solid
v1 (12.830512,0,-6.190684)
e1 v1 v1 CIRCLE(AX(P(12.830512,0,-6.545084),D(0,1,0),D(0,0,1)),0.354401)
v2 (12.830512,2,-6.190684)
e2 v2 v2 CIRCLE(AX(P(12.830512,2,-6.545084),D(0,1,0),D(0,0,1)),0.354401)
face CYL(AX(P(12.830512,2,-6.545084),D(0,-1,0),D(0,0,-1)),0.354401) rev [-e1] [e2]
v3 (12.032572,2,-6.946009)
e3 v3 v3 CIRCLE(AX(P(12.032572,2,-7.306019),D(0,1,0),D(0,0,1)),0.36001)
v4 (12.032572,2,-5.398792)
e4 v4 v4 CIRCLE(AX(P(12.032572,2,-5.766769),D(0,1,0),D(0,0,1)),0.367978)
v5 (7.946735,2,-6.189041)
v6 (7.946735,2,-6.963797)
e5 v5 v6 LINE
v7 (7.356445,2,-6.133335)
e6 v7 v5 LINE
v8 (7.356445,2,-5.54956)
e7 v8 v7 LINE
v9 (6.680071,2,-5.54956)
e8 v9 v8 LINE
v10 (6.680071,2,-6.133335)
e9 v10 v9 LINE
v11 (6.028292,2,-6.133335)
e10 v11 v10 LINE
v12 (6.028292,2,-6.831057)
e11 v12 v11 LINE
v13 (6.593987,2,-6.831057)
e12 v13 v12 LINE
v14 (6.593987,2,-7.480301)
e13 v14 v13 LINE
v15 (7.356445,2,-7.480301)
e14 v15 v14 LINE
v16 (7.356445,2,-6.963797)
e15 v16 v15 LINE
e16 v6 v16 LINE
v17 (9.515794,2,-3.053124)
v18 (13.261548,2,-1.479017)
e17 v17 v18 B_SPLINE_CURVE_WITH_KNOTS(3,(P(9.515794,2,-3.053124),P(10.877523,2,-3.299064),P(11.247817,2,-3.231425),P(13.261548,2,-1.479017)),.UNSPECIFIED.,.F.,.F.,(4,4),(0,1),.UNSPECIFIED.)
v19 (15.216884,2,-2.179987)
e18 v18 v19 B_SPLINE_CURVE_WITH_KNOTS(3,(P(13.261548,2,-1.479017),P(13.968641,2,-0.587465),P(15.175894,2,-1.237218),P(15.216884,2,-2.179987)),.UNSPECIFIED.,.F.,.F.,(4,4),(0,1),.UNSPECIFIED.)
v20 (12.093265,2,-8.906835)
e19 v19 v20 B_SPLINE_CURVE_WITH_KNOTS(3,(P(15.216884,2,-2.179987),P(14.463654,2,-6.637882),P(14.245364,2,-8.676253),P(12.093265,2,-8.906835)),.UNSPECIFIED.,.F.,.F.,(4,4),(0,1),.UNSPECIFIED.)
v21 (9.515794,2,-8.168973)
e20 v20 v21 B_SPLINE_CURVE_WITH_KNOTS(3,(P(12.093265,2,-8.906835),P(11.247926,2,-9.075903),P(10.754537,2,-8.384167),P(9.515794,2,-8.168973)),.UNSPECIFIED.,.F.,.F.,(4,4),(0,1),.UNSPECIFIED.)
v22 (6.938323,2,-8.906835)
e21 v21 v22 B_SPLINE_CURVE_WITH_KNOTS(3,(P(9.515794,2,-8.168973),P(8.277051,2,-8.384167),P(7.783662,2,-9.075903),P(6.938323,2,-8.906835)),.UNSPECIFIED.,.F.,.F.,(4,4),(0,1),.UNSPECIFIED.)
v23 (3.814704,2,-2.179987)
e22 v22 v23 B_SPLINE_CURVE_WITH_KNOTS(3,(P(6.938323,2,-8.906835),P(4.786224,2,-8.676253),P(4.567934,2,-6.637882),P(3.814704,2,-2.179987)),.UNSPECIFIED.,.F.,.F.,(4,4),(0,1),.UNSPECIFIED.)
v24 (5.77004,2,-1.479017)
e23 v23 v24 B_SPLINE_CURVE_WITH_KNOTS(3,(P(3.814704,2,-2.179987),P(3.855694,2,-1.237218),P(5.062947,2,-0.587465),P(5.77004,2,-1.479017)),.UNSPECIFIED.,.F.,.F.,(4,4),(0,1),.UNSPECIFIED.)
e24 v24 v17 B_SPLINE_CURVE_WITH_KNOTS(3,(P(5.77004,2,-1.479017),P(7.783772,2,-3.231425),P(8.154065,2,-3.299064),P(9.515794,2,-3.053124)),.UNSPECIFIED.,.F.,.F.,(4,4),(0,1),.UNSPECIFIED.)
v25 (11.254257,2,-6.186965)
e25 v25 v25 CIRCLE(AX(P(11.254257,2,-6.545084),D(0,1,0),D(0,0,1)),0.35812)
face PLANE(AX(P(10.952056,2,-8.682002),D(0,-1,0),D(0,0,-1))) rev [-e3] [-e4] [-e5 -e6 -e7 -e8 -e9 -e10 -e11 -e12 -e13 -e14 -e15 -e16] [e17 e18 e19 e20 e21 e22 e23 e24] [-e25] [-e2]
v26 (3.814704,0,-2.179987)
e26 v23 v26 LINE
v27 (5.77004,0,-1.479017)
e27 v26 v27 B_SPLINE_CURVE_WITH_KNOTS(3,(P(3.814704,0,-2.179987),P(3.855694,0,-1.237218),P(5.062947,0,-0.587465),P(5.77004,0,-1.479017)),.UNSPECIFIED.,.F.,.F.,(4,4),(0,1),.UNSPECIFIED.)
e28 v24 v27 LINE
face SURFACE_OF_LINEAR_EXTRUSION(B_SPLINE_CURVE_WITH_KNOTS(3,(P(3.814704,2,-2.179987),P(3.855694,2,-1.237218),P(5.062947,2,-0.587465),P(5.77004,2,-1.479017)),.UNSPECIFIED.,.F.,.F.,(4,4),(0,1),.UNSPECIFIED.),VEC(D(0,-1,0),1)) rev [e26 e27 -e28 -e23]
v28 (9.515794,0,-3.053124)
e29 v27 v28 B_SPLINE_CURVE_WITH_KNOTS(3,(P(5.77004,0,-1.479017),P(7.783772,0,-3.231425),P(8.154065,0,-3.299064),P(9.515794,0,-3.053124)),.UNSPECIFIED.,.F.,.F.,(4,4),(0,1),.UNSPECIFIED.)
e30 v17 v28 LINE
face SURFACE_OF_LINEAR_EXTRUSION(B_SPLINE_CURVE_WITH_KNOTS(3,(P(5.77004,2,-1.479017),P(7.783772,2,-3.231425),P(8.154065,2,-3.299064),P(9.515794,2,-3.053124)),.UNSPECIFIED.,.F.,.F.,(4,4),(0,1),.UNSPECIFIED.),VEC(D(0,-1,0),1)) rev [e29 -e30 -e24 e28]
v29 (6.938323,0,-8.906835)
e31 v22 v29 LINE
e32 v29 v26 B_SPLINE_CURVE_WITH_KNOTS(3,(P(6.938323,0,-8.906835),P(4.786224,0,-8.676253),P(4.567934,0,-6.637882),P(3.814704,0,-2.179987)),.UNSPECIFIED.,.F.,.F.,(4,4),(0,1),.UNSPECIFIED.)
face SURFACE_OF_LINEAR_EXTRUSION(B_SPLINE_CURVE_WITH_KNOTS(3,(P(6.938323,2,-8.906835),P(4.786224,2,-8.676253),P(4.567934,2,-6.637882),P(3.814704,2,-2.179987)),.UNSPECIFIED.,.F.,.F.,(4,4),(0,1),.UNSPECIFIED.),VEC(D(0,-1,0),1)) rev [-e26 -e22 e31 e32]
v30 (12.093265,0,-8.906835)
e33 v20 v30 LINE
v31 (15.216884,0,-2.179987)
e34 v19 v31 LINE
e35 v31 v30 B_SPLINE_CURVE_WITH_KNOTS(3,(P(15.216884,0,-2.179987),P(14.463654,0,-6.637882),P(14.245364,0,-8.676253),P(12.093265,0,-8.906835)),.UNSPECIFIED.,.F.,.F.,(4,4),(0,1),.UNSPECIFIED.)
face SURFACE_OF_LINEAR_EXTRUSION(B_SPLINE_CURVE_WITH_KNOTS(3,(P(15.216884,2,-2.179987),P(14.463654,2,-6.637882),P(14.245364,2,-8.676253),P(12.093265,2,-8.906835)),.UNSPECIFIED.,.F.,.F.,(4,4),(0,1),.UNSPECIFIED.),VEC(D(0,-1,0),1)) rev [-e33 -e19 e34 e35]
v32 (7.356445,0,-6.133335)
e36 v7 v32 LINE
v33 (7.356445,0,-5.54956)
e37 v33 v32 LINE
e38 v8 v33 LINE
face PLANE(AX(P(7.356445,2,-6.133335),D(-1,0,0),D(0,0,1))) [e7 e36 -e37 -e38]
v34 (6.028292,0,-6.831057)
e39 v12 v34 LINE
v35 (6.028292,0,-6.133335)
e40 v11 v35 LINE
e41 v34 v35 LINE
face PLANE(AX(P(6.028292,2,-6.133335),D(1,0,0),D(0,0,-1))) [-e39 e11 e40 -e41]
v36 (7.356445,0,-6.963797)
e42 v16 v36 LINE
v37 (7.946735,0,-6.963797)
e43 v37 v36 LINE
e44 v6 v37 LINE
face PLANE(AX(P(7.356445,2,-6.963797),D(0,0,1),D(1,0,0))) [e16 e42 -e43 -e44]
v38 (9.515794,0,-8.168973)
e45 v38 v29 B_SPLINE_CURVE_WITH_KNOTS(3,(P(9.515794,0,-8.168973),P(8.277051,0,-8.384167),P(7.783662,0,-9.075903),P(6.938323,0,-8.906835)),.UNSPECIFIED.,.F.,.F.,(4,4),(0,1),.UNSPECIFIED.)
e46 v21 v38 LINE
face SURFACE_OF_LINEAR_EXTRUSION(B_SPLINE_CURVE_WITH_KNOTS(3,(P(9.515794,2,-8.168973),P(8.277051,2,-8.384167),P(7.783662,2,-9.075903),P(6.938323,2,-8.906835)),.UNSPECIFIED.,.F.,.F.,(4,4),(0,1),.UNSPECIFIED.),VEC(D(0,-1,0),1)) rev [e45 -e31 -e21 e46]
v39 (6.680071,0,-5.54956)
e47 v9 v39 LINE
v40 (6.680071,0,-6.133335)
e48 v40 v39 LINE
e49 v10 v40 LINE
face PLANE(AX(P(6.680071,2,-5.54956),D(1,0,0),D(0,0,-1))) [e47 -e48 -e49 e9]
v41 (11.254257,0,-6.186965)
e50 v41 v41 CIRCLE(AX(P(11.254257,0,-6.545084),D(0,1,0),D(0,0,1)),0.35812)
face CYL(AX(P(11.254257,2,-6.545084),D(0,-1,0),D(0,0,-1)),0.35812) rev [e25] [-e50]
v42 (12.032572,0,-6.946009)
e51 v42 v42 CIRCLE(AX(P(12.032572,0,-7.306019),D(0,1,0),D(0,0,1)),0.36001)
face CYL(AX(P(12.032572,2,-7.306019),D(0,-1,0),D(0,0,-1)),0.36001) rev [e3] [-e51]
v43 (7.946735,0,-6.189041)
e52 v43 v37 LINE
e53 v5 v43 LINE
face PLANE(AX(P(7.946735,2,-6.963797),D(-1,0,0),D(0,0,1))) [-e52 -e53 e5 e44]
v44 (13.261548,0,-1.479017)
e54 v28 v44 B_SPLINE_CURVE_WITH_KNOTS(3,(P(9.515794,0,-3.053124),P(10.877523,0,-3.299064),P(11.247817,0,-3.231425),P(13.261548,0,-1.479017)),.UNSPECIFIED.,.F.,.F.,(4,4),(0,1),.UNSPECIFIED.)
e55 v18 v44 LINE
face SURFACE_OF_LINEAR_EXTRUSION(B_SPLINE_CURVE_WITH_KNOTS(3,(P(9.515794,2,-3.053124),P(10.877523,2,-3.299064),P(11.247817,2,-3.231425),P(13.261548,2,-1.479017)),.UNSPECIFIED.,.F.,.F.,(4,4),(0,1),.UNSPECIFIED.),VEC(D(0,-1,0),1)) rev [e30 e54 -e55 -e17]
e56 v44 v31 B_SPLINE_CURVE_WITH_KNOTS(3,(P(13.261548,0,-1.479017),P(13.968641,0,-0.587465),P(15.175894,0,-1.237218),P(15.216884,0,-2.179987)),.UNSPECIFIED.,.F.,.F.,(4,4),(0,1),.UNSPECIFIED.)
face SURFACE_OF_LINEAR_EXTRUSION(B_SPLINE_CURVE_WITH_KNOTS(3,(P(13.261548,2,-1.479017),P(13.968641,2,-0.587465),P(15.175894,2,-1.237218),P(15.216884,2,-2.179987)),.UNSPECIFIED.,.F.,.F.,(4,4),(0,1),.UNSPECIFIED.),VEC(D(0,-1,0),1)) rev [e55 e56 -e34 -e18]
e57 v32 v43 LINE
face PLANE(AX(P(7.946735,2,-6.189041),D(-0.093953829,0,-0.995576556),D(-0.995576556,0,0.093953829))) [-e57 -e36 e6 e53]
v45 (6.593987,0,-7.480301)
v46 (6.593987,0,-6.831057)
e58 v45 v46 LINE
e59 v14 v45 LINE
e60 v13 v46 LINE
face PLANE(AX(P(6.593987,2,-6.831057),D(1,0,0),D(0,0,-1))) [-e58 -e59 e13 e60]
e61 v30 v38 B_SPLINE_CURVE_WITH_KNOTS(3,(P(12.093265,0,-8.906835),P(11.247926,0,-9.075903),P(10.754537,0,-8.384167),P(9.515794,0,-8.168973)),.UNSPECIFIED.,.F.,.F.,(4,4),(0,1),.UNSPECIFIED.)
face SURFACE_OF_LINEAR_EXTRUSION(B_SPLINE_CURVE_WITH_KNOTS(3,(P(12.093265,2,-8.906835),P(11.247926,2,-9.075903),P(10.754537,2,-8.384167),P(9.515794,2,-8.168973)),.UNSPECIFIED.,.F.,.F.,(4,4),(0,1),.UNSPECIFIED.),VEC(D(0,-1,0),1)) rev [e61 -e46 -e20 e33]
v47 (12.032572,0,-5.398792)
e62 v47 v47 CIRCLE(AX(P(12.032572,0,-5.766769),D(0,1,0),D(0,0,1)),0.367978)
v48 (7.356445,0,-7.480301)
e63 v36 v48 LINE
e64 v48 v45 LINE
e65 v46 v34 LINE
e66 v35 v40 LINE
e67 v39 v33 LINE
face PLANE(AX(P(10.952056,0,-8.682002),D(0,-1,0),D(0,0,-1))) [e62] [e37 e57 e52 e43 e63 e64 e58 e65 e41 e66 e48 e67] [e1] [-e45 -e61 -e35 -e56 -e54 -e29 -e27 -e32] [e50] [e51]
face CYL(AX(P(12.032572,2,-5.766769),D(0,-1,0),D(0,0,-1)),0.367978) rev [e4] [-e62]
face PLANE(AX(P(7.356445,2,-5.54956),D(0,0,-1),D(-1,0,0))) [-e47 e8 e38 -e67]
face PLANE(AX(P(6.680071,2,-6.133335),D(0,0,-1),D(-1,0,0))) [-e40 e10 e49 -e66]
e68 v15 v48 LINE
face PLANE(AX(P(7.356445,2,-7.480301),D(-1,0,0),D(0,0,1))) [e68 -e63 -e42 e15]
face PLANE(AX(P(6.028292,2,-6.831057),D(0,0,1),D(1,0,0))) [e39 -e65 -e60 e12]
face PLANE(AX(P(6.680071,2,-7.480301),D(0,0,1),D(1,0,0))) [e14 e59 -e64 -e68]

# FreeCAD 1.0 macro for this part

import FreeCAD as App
import Part
import Sketcher
Q = App.Units.Quantity


def add_polygon(sketch, points):
    """Adds a closed chain of lines whose ends are joined by coincident constraints."""
    first, n = sketch.GeometryCount, len(points)
    for a, b in zip(points, points[1:] + points[:1]):
        sketch.addGeometry(Part.LineSegment(App.Vector(*a, 0), App.Vector(*b, 0)), False)
    for i in range(n):
        sketch.addConstraint(Sketcher.Constraint("Coincident", first + i, 2, first + (i + 1) % n, 1))

doc = App.newDocument("Part")
body = doc.addObject("PartDesign::Body", "Body")

# Sketch on XZ plane
sketch1 = body.newObject("Sketcher::SketchObject", "Sketch")
sketch1.AttachmentSupport = (doc.getObject("XZ_Plane"), [""])
sketch1.MapMode = "FlatFace"
sketch1.addGeometry(Part.BSplineCurve([App.Vector(9.515794, -8.168973, 0), App.Vector(8.277051, -8.384167, 0), App.Vector(7.783662, -9.075903, 0), App.Vector(6.938323, -8.906835, 0)], [4, 4], [0, 1], False, 3, [1, 1, 1, 1], False), False)  # 0
sketch1.addGeometry(Part.BSplineCurve([App.Vector(6.938323, -8.906835, 0), App.Vector(4.786224, -8.676253, 0), App.Vector(4.567934, -6.637882, 0), App.Vector(3.814704, -2.179987, 0)], [4, 4], [0, 1], False, 3, [1, 1, 1, 1], False), False)  # 1
sketch1.addGeometry(Part.BSplineCurve([App.Vector(3.814704, -2.179987, 0), App.Vector(3.855694, -1.237218, 0), App.Vector(5.062947, -0.587465, 0), App.Vector(5.77004, -1.479017, 0)], [4, 4], [0, 1], False, 3, [1, 1, 1, 1], False), False)  # 2
sketch1.addGeometry(Part.BSplineCurve([App.Vector(5.77004, -1.479017, 0), App.Vector(7.783772, -3.231425, 0), App.Vector(8.154065, -3.299064, 0), App.Vector(9.515794, -3.053124, 0)], [4, 4], [0, 1], False, 3, [1, 1, 1, 1], False), False)  # 3
sketch1.addGeometry(Part.BSplineCurve([App.Vector(13.261548, -1.479017, 0), App.Vector(11.247817, -3.231425, 0), App.Vector(10.877523, -3.299064, 0), App.Vector(9.515794, -3.053124, 0)], [4, 4], [0, 1], False, 3, [1, 1, 1, 1], False), False)  # 4
sketch1.addGeometry(Part.BSplineCurve([App.Vector(15.216884, -2.179987, 0), App.Vector(15.175894, -1.237218, 0), App.Vector(13.968641, -0.587465, 0), App.Vector(13.261548, -1.479017, 0)], [4, 4], [0, 1], False, 3, [1, 1, 1, 1], False), False)  # 5
sketch1.addGeometry(Part.BSplineCurve([App.Vector(12.093265, -8.906835, 0), App.Vector(14.245364, -8.676253, 0), App.Vector(14.463654, -6.637882, 0), App.Vector(15.216884, -2.179987, 0)], [4, 4], [0, 1], False, 3, [1, 1, 1, 1], False), False)  # 6
sketch1.addGeometry(Part.BSplineCurve([App.Vector(9.515794, -8.168973, 0), App.Vector(10.754537, -8.384167, 0), App.Vector(11.247926, -9.075903, 0), App.Vector(12.093265, -8.906835, 0)], [4, 4], [0, 1], False, 3, [1, 1, 1, 1], False), False)  # 7
add_polygon(sketch1, [(6.593987, -7.480301), (7.356445, -7.480301), (7.356445, -6.963797), (7.946735, -6.963797), (7.946735, -6.189041), (7.356445, -6.133335), (7.356445, -5.54956), (6.680071, -5.54956), (6.680071, -6.133335), (6.028292, -6.133335), (6.028292, -6.831057), (6.593987, -6.831057)])  # lines 8-19
sketch1.addGeometry(Part.Circle(App.Vector(12.032572, -5.766769, 0), App.Vector(0, 0, 1), 0.367978), False)  # 20
sketch1.addGeometry(Part.Circle(App.Vector(11.254257, -6.545084, 0), App.Vector(0, 0, 1), 0.35812), False)  # 21
sketch1.addGeometry(Part.Circle(App.Vector(12.830512, -6.545084, 0), App.Vector(0, 0, 1), 0.354401), False)  # 22
sketch1.addGeometry(Part.Circle(App.Vector(12.032572, -7.306019, 0), App.Vector(0, 0, 1), 0.36001), False)  # 23
sketch1.addConstraint([
    Sketcher.Constraint("Block", 0),
    Sketcher.Constraint("Block", 1),
    Sketcher.Constraint("Block", 2),
    Sketcher.Constraint("Block", 3),
    Sketcher.Constraint("Block", 4),
    Sketcher.Constraint("Block", 5),
    Sketcher.Constraint("Block", 6),
    Sketcher.Constraint("Block", 7),
    Sketcher.Constraint("Horizontal", 8),
    Sketcher.Constraint("Vertical", 9),
    Sketcher.Constraint("Horizontal", 10),
    Sketcher.Constraint("Vertical", 11),
    Sketcher.Constraint("Vertical", 13),
    Sketcher.Constraint("Horizontal", 14),
    Sketcher.Constraint("Vertical", 15),
    Sketcher.Constraint("Horizontal", 16),
    Sketcher.Constraint("Vertical", 17),
    Sketcher.Constraint("Horizontal", 18),
    Sketcher.Constraint("Vertical", 19),
    Sketcher.Constraint("Horizontal", 21, 3, 22, 3),
    Sketcher.Constraint("Horizontal", 12, 2, 15, 2),
    Sketcher.Constraint("Vertical", 20, 3, 23, 3),
    Sketcher.Constraint("Vertical", 9, 2, 12, 2),
    Sketcher.Constraint("Diameter", 22, Q("0.708801 mm")),
    Sketcher.Constraint("Diameter", 21, Q("0.716239 mm")),
    Sketcher.Constraint("Diameter", 23, Q("0.72002 mm")),
    Sketcher.Constraint("Diameter", 20, Q("0.735955 mm")),
    Sketcher.Constraint("DistanceX", 8, 1, 8, 2, Q("0.762458 mm")),
    Sketcher.Constraint("DistanceX", 10, 1, 10, 2, Q("0.59029 mm")),
    Sketcher.Constraint("DistanceX", 16, 2, 16, 1, Q("0.651779 mm")),
    Sketcher.Constraint("DistanceY", 8, 2, -1, 1, Q("7.480301 mm")),
    Sketcher.Constraint("DistanceX", 14, 2, 14, 1, Q("0.676374 mm")),
    Sketcher.Constraint("DistanceY", 9, 1, 9, 2, Q("0.516504 mm")),
    Sketcher.Constraint("DistanceY", 11, 1, 11, 2, Q("0.774756 mm")),
    Sketcher.Constraint("DistanceY", 13, 1, 13, 2, Q("0.583775 mm")),
    Sketcher.Constraint("DistanceY", 17, 2, 17, 1, Q("0.697722 mm")),
    Sketcher.Constraint("DistanceY", 19, 2, 19, 1, Q("0.649244 mm")),
    Sketcher.Constraint("DistanceY", 20, 3, -1, 1, Q("5.766769 mm")),
    Sketcher.Constraint("DistanceY", 23, 3, -1, 1, Q("7.306019 mm")),
    Sketcher.Constraint("DistanceX", -1, 1, 14, 2, Q("6.680071 mm")),
    Sketcher.Constraint("DistanceX", 20, 3, 22, 3, Q("0.79794 mm")),
    Sketcher.Constraint("DistanceY", 21, 3, 12, 2, Q("0.41175 mm")),
    Sketcher.Constraint("DistanceX", -1, 1, 20, 3, Q("12.032572 mm")),
    Sketcher.Constraint("DistanceX", -1, 1, 21, 3, Q("11.254257 mm")),
])
pad1 = body.newObject("PartDesign::Pad", "Pad")
pad1.Profile = sketch1
pad1.Length = 2
pad1.Reversed = True

doc.recompute()
